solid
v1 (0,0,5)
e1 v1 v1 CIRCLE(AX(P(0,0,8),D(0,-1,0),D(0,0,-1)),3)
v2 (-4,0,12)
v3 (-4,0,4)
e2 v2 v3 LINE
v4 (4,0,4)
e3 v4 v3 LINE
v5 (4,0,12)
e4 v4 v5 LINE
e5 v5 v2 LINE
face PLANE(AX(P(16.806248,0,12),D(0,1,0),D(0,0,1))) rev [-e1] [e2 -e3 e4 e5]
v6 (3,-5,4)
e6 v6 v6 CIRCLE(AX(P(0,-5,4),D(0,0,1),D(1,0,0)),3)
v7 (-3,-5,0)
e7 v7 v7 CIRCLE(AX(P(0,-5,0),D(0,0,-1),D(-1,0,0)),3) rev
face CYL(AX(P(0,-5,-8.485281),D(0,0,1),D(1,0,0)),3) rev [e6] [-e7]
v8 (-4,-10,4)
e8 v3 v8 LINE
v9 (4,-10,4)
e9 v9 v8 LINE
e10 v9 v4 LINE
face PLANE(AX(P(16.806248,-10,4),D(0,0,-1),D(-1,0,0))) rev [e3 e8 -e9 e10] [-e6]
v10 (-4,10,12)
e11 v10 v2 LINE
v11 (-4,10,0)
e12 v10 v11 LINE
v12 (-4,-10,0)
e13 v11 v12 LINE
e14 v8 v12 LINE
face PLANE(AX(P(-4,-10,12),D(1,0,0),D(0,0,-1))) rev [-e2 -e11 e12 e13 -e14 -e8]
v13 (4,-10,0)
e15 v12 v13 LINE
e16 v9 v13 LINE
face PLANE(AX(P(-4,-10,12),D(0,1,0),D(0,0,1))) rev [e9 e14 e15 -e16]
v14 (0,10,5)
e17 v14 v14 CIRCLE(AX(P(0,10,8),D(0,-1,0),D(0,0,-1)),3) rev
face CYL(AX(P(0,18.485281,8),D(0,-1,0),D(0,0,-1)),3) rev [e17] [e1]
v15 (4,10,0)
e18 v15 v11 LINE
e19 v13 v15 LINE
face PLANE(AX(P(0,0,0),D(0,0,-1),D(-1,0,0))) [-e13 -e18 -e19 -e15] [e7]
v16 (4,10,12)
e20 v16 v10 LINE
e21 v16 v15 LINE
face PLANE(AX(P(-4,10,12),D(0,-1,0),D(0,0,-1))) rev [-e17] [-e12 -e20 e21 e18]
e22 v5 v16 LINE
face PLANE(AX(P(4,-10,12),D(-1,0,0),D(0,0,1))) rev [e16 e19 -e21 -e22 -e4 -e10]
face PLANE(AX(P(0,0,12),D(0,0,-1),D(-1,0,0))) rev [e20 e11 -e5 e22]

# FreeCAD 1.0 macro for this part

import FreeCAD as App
import Part
import Sketcher
Q = App.Units.Quantity


def add_polygon(sketch, points):
    """Adds a closed chain of lines whose ends are joined by coincident constraints."""
    first, n = sketch.GeometryCount, len(points)
    for a, b in zip(points, points[1:] + points[:1]):
        sketch.addGeometry(Part.LineSegment(App.Vector(*a, 0), App.Vector(*b, 0)), False)
    for i in range(n):
        sketch.addConstraint(Sketcher.Constraint("Coincident", first + i, 2, first + (i + 1) % n, 1))

doc = App.newDocument("Part")
body = doc.addObject("PartDesign::Body", "Body")

# Sketch on XY plane
sketch1 = body.newObject("Sketcher::SketchObject", "Sketch")
sketch1.AttachmentSupport = (doc.getObject("XY_Plane"), [""])
sketch1.MapMode = "FlatFace"
add_polygon(sketch1, [(-4, 10), (-4, -10), (4, -10), (4, 10)])  # lines 0-3
sketch1.addConstraint([
    Sketcher.Constraint("Vertical", 0),
    Sketcher.Constraint("Horizontal", 1),
    Sketcher.Constraint("Vertical", 2),
    Sketcher.Constraint("Horizontal", 3),
    Sketcher.Constraint("Symmetric", 0, 2, 2, 2, -1, 1),
    Sketcher.Constraint("DistanceX", 1, 1, 1, 2, Q("8 mm")),
    Sketcher.Constraint("DistanceY", 0, 2, 0, 1, Q("20 mm")),
])
pad1 = body.newObject("PartDesign::Pad", "Pad")
pad1.Profile = sketch1
pad1.Length = 12

# Sketch on YZ plane
sketch2 = body.newObject("Sketcher::SketchObject", "Sketch001")
sketch2.AttachmentSupport = (doc.getObject("YZ_Plane"), [""])
sketch2.MapMode = "FlatFace"
sketch2.AttachmentOffset = App.Placement(App.Vector(0, 0, -4), App.Rotation())
add_polygon(sketch2, [(0, 4), (-10, 4), (-10, 12), (0, 12)])  # lines 0-3
sketch2.addConstraint([
    Sketcher.Constraint("Horizontal", 0),
    Sketcher.Constraint("Vertical", 1),
    Sketcher.Constraint("Horizontal", 2),
    Sketcher.Constraint("Vertical", 3),
    Sketcher.Constraint("PointOnObject", 2, 2, -2),
    Sketcher.Constraint("DistanceX", 0, 2, 0, 1, Q("10 mm")),
    Sketcher.Constraint("DistanceY", 1, 1, 1, 2, Q("8 mm")),
    Sketcher.Constraint("DistanceY", -1, 1, 0, 2, Q("4 mm")),
])
pocket1 = body.newObject("PartDesign::Pocket", "Pocket")
pocket1.Profile = sketch2
pocket1.Length = 8
pocket1.Reversed = True

# Sketch on XZ plane
sketch3 = body.newObject("Sketcher::SketchObject", "Sketch002")
sketch3.AttachmentSupport = (doc.getObject("XZ_Plane"), [""])
sketch3.MapMode = "FlatFace"
sketch3.addGeometry(Part.Circle(App.Vector(0, 8, 0), App.Vector(0, 0, 1), 3), False)
sketch3.addConstraint([
    Sketcher.Constraint("PointOnObject", 0, 3, -2),
    Sketcher.Constraint("Diameter", 0, Q("6 mm")),
    Sketcher.Constraint("DistanceY", -1, 1, 0, 3, Q("8 mm")),
])
pocket2 = body.newObject("PartDesign::Pocket", "Pocket001")
pocket2.Profile = sketch3
pocket2.Length = 10

# Sketch on XY plane
sketch4 = body.newObject("Sketcher::SketchObject", "Sketch003")
sketch4.AttachmentSupport = (doc.getObject("XY_Plane"), [""])
sketch4.MapMode = "FlatFace"
sketch4.AttachmentOffset = App.Placement(App.Vector(0, 0, 4), App.Rotation())
sketch4.addGeometry(Part.Circle(App.Vector(0, -5, 0), App.Vector(0, 0, 1), 3), False)
sketch4.addConstraint([
    Sketcher.Constraint("PointOnObject", 0, 3, -2),
    Sketcher.Constraint("Diameter", 0, Q("6 mm")),
    Sketcher.Constraint("DistanceY", 0, 3, -1, 1, Q("5 mm")),
])
pocket3 = body.newObject("PartDesign::Pocket", "Pocket002")
pocket3.Profile = sketch4
pocket3.Length = 4

doc.recompute()
